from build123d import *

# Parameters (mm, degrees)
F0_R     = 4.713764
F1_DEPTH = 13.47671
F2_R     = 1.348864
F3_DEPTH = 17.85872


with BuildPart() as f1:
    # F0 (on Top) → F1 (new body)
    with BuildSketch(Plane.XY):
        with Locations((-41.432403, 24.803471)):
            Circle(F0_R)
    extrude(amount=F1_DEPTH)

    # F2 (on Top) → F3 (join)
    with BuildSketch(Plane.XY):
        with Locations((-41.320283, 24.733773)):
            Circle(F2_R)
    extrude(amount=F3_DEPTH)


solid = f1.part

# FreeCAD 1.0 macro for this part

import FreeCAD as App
import Part
import Sketcher

V = App.Vector
Q = App.Units.Quantity

doc = App.newDocument("Part")
body = doc.addObject("PartDesign::Body", "Body")

# Sketch on XY plane
sketch1 = body.newObject("Sketcher::SketchObject", "Sketch")
sketch1.AttachmentSupport = (doc.getObject("XY_Plane"), [""])
sketch1.MapMode = "FlatFace"
sketch1.addGeometry(Part.Circle(V(-41.4, 24.8, 0), V(0, 0, 1), 4.7), False)
sketch1.addConstraint([
    Sketcher.Constraint("Diameter", 0, Q("9.427528 mm")),
    Sketcher.Constraint("DistanceY", -1, 1, 0, 3, Q("24.803471 mm")),
    Sketcher.Constraint("DistanceX", 0, 3, -1, 1, Q("41.432403 mm")),
])
pad1 = body.newObject("PartDesign::Pad", "Pad")
pad1.Profile = sketch1
pad1.Length = 13.47671

# Sketch on XY plane
sketch2 = body.newObject("Sketcher::SketchObject", "Sketch001")
sketch2.AttachmentSupport = (doc.getObject("XY_Plane"), [""])
sketch2.MapMode = "FlatFace"
sketch2.addGeometry(Part.Circle(V(-41.3, 24.7, 0), V(0, 0, 1), 1.3), False)
sketch2.addConstraint([
    Sketcher.Constraint("Diameter", 0, Q("2.697728 mm")),
    Sketcher.Constraint("DistanceX", 0, 3, -1, 1, Q("41.320283 mm")),
    Sketcher.Constraint("DistanceY", -1, 1, 0, 3, Q("24.733773 mm")),
])
pad2 = body.newObject("PartDesign::Pad", "Pad001")
pad2.Profile = sketch2
pad2.Length = 17.85872

doc.recompute()
